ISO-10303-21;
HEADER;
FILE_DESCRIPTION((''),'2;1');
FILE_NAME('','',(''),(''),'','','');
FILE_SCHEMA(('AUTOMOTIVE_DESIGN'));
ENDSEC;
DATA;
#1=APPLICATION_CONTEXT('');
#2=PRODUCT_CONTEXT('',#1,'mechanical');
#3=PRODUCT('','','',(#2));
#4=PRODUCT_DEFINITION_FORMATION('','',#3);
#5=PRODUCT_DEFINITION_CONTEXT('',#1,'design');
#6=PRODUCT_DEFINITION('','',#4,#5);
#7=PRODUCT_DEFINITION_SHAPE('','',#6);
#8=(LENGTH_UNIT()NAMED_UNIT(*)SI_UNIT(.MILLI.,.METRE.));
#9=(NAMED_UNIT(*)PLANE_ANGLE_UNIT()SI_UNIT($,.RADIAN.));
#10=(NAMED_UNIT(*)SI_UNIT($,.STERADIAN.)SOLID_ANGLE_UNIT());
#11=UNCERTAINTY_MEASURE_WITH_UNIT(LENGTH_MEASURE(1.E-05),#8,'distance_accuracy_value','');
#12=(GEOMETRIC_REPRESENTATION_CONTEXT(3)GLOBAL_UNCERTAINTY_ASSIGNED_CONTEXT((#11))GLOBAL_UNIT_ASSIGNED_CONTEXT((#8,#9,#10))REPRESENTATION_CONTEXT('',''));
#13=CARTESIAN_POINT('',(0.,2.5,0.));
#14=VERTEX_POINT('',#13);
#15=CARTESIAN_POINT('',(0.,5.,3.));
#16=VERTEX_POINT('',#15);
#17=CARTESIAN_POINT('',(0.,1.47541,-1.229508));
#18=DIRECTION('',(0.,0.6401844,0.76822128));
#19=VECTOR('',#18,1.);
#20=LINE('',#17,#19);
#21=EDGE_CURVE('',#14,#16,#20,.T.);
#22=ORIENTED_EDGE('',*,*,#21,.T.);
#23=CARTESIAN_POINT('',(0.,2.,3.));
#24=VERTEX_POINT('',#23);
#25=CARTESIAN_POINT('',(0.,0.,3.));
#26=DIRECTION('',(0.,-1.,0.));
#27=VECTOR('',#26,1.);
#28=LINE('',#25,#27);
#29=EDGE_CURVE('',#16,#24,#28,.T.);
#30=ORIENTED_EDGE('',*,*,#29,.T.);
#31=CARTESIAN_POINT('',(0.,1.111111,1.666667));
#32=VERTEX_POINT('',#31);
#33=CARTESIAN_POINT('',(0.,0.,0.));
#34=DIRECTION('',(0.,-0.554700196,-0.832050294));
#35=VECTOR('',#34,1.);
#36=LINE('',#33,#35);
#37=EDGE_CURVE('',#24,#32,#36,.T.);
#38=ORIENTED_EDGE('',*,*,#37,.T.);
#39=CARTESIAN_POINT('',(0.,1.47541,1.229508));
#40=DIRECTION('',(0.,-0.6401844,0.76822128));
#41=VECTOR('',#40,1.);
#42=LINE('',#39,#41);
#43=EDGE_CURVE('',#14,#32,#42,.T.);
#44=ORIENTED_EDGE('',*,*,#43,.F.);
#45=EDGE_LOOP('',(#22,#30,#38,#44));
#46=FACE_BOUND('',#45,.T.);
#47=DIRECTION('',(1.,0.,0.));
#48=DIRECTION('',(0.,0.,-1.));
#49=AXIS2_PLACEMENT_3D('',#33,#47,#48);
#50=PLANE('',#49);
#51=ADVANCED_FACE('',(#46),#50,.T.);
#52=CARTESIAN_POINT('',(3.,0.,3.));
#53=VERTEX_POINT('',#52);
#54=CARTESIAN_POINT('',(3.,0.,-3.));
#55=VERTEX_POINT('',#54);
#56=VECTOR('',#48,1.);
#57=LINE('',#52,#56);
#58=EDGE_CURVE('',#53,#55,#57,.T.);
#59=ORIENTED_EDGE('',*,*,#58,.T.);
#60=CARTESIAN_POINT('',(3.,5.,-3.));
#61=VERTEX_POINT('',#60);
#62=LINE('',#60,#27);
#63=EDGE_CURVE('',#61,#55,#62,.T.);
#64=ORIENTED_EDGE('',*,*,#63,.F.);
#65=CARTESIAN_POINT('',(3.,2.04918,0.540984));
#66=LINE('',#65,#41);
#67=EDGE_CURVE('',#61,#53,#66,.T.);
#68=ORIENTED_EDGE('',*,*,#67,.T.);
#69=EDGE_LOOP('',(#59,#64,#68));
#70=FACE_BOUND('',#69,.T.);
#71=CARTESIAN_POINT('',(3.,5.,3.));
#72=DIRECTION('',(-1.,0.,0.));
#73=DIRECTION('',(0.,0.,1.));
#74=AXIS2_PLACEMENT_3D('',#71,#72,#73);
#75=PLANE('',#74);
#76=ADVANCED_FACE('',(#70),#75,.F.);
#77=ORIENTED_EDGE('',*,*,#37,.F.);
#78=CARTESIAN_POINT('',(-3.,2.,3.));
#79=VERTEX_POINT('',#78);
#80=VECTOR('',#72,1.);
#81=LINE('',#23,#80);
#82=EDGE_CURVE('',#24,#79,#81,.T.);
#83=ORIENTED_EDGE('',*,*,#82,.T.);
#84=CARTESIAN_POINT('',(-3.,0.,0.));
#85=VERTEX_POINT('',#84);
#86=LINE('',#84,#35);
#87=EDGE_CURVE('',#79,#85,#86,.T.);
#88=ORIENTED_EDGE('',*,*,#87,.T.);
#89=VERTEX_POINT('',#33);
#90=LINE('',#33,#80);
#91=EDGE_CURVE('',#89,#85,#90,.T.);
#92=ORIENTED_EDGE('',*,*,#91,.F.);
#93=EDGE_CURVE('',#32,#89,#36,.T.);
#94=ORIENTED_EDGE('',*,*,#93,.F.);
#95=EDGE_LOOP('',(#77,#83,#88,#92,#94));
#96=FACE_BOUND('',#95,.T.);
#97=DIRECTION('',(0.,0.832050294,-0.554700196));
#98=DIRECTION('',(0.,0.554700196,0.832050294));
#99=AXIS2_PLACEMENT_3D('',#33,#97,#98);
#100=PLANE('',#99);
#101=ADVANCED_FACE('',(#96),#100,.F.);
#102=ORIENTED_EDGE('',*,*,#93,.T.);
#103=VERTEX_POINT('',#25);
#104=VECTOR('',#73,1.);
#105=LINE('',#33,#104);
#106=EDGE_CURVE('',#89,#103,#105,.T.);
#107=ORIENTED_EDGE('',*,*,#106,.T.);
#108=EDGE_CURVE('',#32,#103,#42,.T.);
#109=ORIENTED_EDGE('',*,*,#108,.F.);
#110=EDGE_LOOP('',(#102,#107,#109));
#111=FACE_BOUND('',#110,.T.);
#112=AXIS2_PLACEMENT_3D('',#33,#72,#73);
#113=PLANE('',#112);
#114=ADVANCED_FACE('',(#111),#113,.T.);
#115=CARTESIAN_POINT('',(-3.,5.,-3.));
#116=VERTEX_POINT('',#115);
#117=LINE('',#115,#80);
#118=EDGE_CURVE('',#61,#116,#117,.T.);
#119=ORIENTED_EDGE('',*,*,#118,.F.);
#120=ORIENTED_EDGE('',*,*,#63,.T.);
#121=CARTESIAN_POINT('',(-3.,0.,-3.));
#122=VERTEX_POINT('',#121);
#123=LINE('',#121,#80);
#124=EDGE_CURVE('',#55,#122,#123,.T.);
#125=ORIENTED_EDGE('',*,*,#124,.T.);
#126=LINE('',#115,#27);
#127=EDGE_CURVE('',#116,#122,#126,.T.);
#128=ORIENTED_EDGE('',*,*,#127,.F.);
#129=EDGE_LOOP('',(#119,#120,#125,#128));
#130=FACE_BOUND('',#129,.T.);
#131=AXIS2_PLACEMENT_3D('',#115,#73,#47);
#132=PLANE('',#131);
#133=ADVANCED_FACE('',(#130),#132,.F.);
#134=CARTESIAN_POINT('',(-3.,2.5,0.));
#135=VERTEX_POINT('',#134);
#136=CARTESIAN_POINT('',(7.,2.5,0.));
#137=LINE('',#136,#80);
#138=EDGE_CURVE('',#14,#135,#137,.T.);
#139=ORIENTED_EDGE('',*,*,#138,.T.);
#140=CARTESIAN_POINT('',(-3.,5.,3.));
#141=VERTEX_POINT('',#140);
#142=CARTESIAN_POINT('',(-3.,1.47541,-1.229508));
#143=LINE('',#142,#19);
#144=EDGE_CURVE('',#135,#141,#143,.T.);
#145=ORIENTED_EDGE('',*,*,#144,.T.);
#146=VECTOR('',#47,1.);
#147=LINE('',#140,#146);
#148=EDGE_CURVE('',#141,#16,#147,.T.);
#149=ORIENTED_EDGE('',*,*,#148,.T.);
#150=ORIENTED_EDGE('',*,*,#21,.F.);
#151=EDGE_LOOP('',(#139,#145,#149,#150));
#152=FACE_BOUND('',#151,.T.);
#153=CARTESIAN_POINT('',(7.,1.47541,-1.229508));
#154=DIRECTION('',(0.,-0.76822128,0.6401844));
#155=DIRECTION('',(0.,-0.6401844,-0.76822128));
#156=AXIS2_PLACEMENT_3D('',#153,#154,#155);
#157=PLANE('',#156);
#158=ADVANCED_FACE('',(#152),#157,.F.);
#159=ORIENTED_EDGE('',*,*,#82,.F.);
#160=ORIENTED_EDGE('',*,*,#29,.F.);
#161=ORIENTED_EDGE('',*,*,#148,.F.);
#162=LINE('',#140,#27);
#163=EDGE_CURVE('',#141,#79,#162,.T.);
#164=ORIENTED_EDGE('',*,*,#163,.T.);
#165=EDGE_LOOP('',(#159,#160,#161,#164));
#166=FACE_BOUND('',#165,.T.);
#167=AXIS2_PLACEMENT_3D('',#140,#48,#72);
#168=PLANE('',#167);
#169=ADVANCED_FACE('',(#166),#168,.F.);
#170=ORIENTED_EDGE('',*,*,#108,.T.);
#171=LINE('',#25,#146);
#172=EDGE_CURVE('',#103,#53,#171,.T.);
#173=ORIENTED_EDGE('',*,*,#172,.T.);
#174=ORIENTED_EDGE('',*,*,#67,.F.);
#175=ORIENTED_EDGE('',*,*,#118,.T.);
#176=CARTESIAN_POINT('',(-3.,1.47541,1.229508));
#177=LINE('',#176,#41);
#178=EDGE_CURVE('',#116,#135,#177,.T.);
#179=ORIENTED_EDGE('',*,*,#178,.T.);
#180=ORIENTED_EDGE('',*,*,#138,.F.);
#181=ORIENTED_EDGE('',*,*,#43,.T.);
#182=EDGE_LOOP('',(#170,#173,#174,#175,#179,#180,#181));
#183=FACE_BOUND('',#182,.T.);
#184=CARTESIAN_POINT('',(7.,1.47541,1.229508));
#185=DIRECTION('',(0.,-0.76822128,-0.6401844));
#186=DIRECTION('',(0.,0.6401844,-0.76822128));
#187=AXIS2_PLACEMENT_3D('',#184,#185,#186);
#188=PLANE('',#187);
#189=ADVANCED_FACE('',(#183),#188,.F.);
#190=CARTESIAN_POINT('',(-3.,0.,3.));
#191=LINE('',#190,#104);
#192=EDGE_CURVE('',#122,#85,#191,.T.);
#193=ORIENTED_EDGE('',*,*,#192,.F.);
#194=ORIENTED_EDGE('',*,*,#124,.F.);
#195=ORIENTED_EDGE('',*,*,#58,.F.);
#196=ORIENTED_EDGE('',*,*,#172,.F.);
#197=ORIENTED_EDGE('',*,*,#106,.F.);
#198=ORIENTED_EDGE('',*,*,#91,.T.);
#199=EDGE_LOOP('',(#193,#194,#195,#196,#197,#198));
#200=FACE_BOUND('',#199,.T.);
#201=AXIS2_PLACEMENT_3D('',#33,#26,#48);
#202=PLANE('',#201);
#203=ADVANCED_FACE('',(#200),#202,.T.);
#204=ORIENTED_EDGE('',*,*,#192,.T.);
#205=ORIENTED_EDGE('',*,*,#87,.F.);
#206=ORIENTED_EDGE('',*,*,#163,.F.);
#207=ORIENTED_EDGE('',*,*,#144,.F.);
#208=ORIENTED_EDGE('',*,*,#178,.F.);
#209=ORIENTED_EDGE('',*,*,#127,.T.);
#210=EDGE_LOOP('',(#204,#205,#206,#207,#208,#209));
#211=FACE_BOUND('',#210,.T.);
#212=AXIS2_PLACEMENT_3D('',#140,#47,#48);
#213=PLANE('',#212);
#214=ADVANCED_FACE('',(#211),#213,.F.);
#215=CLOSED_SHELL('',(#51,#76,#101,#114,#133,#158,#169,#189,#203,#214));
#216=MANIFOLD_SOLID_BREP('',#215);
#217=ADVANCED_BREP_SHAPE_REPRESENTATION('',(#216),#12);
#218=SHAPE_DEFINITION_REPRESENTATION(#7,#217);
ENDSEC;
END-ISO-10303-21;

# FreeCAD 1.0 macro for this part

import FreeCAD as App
import Part
import Sketcher
from FreeCAD import Vector
Q = App.Units.Quantity


def add_polygon(sketch, points):
    """Adds a closed chain of lines whose ends are joined by coincident constraints."""
    first, n = sketch.GeometryCount, len(points)
    for a, b in zip(points, points[1:] + points[:1]):
        sketch.addGeometry(Part.LineSegment(App.Vector(*a, 0), App.Vector(*b, 0)), False)
    for i in range(n):
        sketch.addConstraint(Sketcher.Constraint("Coincident", first + i, 2, first + (i + 1) % n, 1))

doc = App.newDocument("Part")
body = doc.addObject("PartDesign::Body", "Body")

# Sketch on XZ plane
sketch1 = body.newObject("Sketcher::SketchObject", "Sketch")
sketch1.AttachmentSupport = (doc.getObject("XZ_Plane"), [""])
sketch1.MapMode = "FlatFace"
add_polygon(sketch1, [(-3, -3), (-3, 3), (3, 3), (3, -3)])  # lines 0-3
sketch1.addConstraint([
    Sketcher.Constraint("Vertical", 0),
    Sketcher.Constraint("Horizontal", 1),
    Sketcher.Constraint("Vertical", 2),
    Sketcher.Constraint("Horizontal", 3),
    Sketcher.Constraint("Symmetric", 0, 2, 2, 2, -1, 1),
    Sketcher.Constraint("Equal", 3, 0),
    Sketcher.Constraint("DistanceX", 1, 1, 1, 2, Q("6 mm")),
])
pad1 = body.newObject("PartDesign::Pad", "Pad")
pad1.Profile = sketch1
pad1.Length = 5
pad1.Reversed = True

# Sketch on YZ plane
sketch2 = body.newObject("Sketcher::SketchObject", "Sketch001")
sketch2.AttachmentSupport = (doc.getObject("YZ_Plane"), [""])
sketch2.MapMode = "FlatFace"
sketch2.AttachmentOffset = App.Placement(Vector(0, 0, -3), App.Rotation())
add_polygon(sketch2, [(5, 3), (5, -3), (2.5, 0)])  # lines 0-2
sketch2.addConstraint([
    Sketcher.Constraint("Vertical", 0),
    Sketcher.Constraint("PointOnObject", 1, 2, -1),
    Sketcher.Constraint("Equal", 1, 2),
    Sketcher.Constraint("DistanceY", 0, 2, 0, 1, Q("6 mm")),
    Sketcher.Constraint("DistanceX", -1, 1, 0, 2, Q("5 mm")),
    Sketcher.Constraint("DistanceX", -1, 1, 1, 2, Q("2.5 mm")),
])
pocket1 = body.newObject("PartDesign::Pocket", "Pocket")
pocket1.Profile = sketch2
pocket1.Length = 10
pocket1.Reversed = True

# Sketch on YZ plane
sketch3 = body.newObject("Sketcher::SketchObject", "Sketch002")
sketch3.AttachmentSupport = (doc.getObject("YZ_Plane"), [""])
sketch3.MapMode = "FlatFace"
sketch3.AttachmentOffset = App.Placement(Vector(0, 0, 3), App.Rotation())
add_polygon(sketch3, [(0, 3), (2.5, 0), (5, 3)])  # lines 0-2
sketch3.addConstraint([
    Sketcher.Constraint("Horizontal", 2),
    Sketcher.Constraint("PointOnObject", 0, 2, -1),
    Sketcher.Constraint("PointOnObject", 2, 2, -2),
    Sketcher.Constraint("Equal", 0, 1),
    Sketcher.Constraint("DistanceX", 2, 2, 2, 1, Q("5 mm")),
    Sketcher.Constraint("DistanceY", -1, 1, 1, 2, Q("3 mm")),
])
pocket2 = body.newObject("PartDesign::Pocket", "Pocket001")
pocket2.Profile = sketch3
pocket2.Length = 3

# Sketch on YZ plane
sketch4 = body.newObject("Sketcher::SketchObject", "Sketch003")
sketch4.AttachmentSupport = (doc.getObject("YZ_Plane"), [""])
sketch4.MapMode = "FlatFace"
sketch4.AttachmentOffset = App.Placement(Vector(0, 0, -3), App.Rotation())
add_polygon(sketch4, [(0, 0), (0, 3), (2, 3)])  # lines 0-2
sketch4.addConstraint([
    Sketcher.Constraint("Vertical", 0),
    Sketcher.Constraint("Horizontal", 1),
    Sketcher.Constraint("Coincident", 2, 2, -1, 1),
    Sketcher.Constraint("DistanceX", 1, 1, 1, 2, Q("2 mm")),
    Sketcher.Constraint("DistanceY", 0, 1, 0, 2, Q("3 mm")),
])
pocket3 = body.newObject("PartDesign::Pocket", "Pocket002")
pocket3.Profile = sketch4
pocket3.Length = 3
pocket3.Reversed = True

doc.recompute()
